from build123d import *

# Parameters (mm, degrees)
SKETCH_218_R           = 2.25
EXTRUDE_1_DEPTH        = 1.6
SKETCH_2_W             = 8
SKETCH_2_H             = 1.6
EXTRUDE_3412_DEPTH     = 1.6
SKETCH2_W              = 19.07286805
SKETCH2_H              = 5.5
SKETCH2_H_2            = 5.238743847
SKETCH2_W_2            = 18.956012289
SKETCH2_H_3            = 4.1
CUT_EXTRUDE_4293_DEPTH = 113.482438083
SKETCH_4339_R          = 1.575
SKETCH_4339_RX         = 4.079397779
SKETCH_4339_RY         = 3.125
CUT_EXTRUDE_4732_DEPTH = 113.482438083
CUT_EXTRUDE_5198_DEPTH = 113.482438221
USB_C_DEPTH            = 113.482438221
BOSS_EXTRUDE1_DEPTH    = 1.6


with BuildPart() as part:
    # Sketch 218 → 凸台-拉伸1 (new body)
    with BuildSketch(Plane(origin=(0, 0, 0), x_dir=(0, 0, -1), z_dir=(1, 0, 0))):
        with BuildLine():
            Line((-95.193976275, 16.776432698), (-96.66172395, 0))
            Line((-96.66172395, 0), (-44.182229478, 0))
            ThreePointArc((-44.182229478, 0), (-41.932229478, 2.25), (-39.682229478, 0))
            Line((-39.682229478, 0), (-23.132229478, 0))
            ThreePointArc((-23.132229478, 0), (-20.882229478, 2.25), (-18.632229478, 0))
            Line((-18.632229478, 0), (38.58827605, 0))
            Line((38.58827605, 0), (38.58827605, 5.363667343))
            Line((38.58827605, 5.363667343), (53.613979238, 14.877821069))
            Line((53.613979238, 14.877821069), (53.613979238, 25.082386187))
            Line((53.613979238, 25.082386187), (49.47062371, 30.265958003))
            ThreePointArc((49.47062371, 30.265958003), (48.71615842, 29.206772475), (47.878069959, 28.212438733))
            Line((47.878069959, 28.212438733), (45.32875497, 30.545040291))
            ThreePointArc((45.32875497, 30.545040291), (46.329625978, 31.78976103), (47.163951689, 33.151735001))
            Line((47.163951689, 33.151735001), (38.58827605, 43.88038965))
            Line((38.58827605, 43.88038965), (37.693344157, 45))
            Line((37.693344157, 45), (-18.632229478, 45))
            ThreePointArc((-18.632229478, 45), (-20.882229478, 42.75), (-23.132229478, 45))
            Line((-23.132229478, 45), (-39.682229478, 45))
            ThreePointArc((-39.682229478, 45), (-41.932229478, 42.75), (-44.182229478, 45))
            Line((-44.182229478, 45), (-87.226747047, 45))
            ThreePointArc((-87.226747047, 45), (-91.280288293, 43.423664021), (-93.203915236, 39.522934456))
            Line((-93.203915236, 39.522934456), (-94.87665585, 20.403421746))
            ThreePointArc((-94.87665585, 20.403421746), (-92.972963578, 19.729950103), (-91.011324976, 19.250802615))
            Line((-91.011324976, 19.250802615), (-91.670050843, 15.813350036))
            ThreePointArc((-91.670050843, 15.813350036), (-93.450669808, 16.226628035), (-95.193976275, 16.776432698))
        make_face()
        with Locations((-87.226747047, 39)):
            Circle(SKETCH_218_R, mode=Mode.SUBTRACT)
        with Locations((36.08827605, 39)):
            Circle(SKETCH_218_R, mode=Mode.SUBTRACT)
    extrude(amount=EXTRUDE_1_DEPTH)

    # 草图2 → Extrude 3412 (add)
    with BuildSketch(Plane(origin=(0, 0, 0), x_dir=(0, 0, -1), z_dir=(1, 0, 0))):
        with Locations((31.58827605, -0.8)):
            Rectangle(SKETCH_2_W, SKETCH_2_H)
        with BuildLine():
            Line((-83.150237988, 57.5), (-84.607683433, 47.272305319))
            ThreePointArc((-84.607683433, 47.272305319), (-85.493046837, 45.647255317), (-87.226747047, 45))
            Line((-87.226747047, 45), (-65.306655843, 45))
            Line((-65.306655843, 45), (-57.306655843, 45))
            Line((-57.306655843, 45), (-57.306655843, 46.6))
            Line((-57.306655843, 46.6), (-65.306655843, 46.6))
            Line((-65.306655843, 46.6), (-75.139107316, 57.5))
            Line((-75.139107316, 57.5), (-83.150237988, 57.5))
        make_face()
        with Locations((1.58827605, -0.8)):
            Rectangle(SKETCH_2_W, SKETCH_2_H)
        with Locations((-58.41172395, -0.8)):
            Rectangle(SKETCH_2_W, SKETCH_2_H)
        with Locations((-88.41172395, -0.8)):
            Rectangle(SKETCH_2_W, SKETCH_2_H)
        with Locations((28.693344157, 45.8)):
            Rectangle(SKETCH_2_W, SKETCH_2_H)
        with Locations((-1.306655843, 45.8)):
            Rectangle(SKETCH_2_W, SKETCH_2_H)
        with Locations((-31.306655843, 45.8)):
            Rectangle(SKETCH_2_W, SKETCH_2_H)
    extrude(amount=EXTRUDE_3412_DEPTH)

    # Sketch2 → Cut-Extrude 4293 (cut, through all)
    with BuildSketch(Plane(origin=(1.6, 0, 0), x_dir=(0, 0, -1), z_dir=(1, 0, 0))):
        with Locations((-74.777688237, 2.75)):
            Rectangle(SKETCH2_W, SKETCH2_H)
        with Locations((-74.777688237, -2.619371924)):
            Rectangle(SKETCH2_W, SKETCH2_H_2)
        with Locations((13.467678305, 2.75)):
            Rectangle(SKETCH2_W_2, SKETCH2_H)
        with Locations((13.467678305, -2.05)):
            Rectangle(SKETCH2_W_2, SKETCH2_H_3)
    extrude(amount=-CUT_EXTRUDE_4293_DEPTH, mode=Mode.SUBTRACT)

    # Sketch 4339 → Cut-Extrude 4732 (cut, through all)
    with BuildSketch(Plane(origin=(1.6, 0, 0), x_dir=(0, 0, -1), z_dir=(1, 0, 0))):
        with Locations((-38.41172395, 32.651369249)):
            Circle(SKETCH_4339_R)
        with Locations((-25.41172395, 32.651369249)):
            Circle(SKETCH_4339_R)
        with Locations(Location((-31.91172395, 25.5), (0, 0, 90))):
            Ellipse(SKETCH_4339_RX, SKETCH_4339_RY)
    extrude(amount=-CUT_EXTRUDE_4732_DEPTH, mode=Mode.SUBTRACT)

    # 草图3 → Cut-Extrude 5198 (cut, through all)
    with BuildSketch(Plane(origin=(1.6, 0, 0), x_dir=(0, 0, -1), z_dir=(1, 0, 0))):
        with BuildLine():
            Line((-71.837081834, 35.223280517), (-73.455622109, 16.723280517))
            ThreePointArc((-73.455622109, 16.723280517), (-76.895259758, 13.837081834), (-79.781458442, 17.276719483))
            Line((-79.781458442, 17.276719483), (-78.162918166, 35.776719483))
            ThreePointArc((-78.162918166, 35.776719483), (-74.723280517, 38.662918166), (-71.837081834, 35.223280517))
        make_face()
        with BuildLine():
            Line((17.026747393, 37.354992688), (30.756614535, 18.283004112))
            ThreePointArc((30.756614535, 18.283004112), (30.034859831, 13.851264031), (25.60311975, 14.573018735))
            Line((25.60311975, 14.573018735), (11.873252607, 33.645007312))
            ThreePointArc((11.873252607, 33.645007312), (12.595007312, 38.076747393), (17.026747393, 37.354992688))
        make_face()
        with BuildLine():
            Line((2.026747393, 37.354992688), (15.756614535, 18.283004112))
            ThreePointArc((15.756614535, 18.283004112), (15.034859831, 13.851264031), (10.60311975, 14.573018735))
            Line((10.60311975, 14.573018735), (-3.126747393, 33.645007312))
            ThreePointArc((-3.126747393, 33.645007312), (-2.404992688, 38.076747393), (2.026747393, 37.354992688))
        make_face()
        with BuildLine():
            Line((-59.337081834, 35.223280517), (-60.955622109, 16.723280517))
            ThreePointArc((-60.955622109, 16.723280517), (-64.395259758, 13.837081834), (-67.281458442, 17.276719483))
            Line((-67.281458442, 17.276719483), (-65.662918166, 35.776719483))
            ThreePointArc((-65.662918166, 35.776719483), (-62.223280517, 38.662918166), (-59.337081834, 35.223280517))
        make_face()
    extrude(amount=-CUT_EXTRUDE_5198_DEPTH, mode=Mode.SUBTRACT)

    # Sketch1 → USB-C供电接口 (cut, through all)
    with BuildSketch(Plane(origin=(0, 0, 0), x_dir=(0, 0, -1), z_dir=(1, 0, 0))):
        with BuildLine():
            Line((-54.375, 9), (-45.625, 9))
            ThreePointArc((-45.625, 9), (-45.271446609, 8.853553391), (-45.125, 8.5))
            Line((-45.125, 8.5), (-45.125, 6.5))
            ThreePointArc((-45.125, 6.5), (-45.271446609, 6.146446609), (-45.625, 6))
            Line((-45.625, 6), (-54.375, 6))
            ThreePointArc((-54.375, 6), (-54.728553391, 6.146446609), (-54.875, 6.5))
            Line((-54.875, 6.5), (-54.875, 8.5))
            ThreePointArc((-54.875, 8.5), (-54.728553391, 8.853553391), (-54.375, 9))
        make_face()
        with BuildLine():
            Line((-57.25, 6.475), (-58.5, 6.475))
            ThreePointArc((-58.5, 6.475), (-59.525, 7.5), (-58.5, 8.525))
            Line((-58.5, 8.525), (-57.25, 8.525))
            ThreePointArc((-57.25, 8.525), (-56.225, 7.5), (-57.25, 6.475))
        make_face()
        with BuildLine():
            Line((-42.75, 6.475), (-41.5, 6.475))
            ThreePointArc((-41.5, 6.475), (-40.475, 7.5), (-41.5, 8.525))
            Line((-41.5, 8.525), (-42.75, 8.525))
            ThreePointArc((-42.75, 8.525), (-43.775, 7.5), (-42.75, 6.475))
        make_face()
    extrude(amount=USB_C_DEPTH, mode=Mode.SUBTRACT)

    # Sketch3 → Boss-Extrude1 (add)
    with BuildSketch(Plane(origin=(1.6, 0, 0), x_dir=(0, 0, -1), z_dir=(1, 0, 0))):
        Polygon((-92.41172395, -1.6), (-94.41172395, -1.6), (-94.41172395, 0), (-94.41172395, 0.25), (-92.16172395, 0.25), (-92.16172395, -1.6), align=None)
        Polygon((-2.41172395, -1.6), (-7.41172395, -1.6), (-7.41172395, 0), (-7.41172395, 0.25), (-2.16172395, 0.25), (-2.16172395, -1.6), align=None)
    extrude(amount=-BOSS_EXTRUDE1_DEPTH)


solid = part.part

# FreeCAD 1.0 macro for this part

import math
import FreeCAD as App
import Part
import Sketcher

V = App.Vector
Q = App.Units.Quantity


def add_polygon(sketch, points):
    """Adds a closed chain of lines whose ends are joined by coincident constraints."""
    first, n = sketch.GeometryCount, len(points)
    for a, b in zip(points, points[1:] + points[:1]):
        sketch.addGeometry(Part.LineSegment(App.Vector(*a, 0), App.Vector(*b, 0)), False)
    for i in range(n):
        sketch.addConstraint(Sketcher.Constraint("Coincident", first + i, 2, first + (i + 1) % n, 1))

doc = App.newDocument("Part")
body = doc.addObject("PartDesign::Body", "Body")

sketch1 = body.newObject("Sketcher::SketchObject", "Sketch")
sketch1.AttachmentSupport = (doc.getObject("YZ_Plane"), [""])
sketch1.MapMode = "FlatFace"
sketch1.addGeometry([
    Part.LineSegment(V(16.8, 95.2, 0), V(0, 96.7, 0)),
    Part.LineSegment(V(0, 96.7, 0), V(0, 44.2, 0)),
    Part.ArcOfCircle(Part.Circle(V(0, 41.9, 0), V(0, 0, 1), 2.2), math.radians(-90), math.radians(90)),
    Part.LineSegment(V(0, 39.7, 0), V(0, 23.1, 0)),
    Part.ArcOfCircle(Part.Circle(V(0, 20.9, 0), V(0, 0, 1), 2.2), math.radians(-90), math.radians(90)),
    Part.LineSegment(V(0, 18.6, 0), V(0, -38.6, 0)),
    Part.LineSegment(V(0, -38.6, 0), V(5.4, -38.6, 0)),
    Part.LineSegment(V(5.4, -38.6, 0), V(14.9, -53.6, 0)),
    Part.LineSegment(V(14.9, -53.6, 0), V(25.1, -53.6, 0)),
    Part.LineSegment(V(25.1, -53.6, 0), V(30.3, -49.5, 0)),
    Part.ArcOfCircle(Part.Circle(V(39, -36.1, 0), V(0, 0, 1), 16), math.radians(-132.46), math.radians(-123.13)),
    Part.LineSegment(V(28.2, -47.9, 0), V(30.5, -45.3, 0)),
    Part.ArcOfCircle(Part.Circle(V(39, -36.1, 0), V(0, 0, 1), 12.5), math.radians(-132.46), math.radians(-117.84)),
    Part.LineSegment(V(33.2, -47.2, 0), V(43.9, -38.6, 0)),
    Part.LineSegment(V(43.9, -38.6, 0), V(45, -37.7, 0)),
    Part.LineSegment(V(45, -37.7, 0), V(45, 18.6, 0)),
    Part.ArcOfCircle(Part.Circle(V(45, 20.9, 0), V(0, 0, 1), 2.2), math.radians(90), math.radians(270)),
    Part.LineSegment(V(45, 23.1, 0), V(45, 39.7, 0)),
    Part.ArcOfCircle(Part.Circle(V(45, 41.9, 0), V(0, 0, 1), 2.2), math.radians(90), math.radians(270)),
    Part.LineSegment(V(45, 44.2, 0), V(45, 87.2, 0)),
    Part.ArcOfCircle(Part.Circle(V(39, 87.2, 0), V(0, 0, 1), 6), math.radians(0), math.radians(85)),
    Part.LineSegment(V(39.5, 93.2, 0), V(20.4, 94.9, 0)),
    Part.ArcOfCircle(Part.Circle(V(39, 87.2, 0), V(0, 0, 1), 20.1), math.radians(157.64), math.radians(169.15)),
    Part.LineSegment(V(19.3, 91, 0), V(15.8, 91.7, 0)),
    Part.ArcOfCircle(Part.Circle(V(39, 87.2, 0), V(0, 0, 1), 23.6), math.radians(160.28), math.radians(169.15)),
    Part.Circle(V(39, 87.2, 0), V(0, 0, 1), 2.2),
    Part.Circle(V(39, -36.1, 0), V(0, 0, 1), 2.2),
], False)
sketch1.addConstraint([
    Sketcher.Constraint("Coincident", 0, 2, 1, 1),
    Sketcher.Constraint("Coincident", 1, 2, 2, 2),
    Sketcher.Constraint("Coincident", 2, 1, 3, 1),
    Sketcher.Constraint("Coincident", 3, 2, 4, 2),
    Sketcher.Constraint("Coincident", 4, 1, 5, 1),
    Sketcher.Constraint("Coincident", 5, 2, 6, 1),
    Sketcher.Constraint("Coincident", 6, 2, 7, 1),
    Sketcher.Constraint("Coincident", 7, 2, 8, 1),
    Sketcher.Constraint("Coincident", 8, 2, 9, 1),
    Sketcher.Constraint("Coincident", 9, 2, 10, 2),
    Sketcher.Constraint("Coincident", 10, 1, 11, 1),
    Sketcher.Constraint("Coincident", 11, 2, 12, 1),
    Sketcher.Constraint("Coincident", 12, 2, 13, 1),
    Sketcher.Constraint("Coincident", 13, 2, 14, 1),
    Sketcher.Constraint("Coincident", 14, 2, 15, 1),
    Sketcher.Constraint("Coincident", 15, 2, 16, 2),
    Sketcher.Constraint("Coincident", 16, 1, 17, 1),
    Sketcher.Constraint("Coincident", 17, 2, 18, 2),
    Sketcher.Constraint("Coincident", 18, 1, 19, 1),
    Sketcher.Constraint("Tangent", 19, 2, 20, 1),
    Sketcher.Constraint("Tangent", 20, 2, 21, 1),
    Sketcher.Constraint("Coincident", 21, 2, 22, 1),
    Sketcher.Constraint("Coincident", 22, 2, 23, 1),
    Sketcher.Constraint("Coincident", 23, 2, 24, 2),
    Sketcher.Constraint("Coincident", 24, 1, 0, 1),
    Sketcher.Constraint("Vertical", 1),
    Sketcher.Constraint("Vertical", 3),
    Sketcher.Constraint("Vertical", 5),
    Sketcher.Constraint("Horizontal", 6),
    Sketcher.Constraint("Horizontal", 8),
    Sketcher.Constraint("Vertical", 15),
    Sketcher.Constraint("Vertical", 17),
    Sketcher.Constraint("Vertical", 19),
    Sketcher.Constraint("Coincident", 12, 3, 10, 3),
    Sketcher.Constraint("Coincident", 22, 3, 20, 3),
    Sketcher.Constraint("Coincident", 24, 3, 20, 3),
    Sketcher.Constraint("Coincident", 25, 3, 20, 3),
    Sketcher.Constraint("Coincident", 26, 3, 10, 3),
    Sketcher.Constraint("Equal", 2, 4),
    Sketcher.Constraint("Equal", 4, 16),
    Sketcher.Constraint("Equal", 16, 18),
    Sketcher.Constraint("Equal", 18, 25),
    Sketcher.Constraint("Equal", 25, 26),
    Sketcher.Constraint("PointOnObject", 2, 3, -2),
    Sketcher.Constraint("PointOnObject", 4, 3, -2),
    Sketcher.Constraint("PointOnObject", 0, 2, -2),
    Sketcher.Constraint("PointOnObject", 2, 1, -2),
    Sketcher.Constraint("PointOnObject", 4, 1, -2),
    Sketcher.Constraint("Parallel", 9, 13),
    Sketcher.Constraint("Parallel", 13, 14),
    Sketcher.Constraint("Parallel", 0, 21),
    Sketcher.Constraint("Horizontal", 4, 3, 16, 3),
    Sketcher.Constraint("Horizontal", 2, 3, 18, 3),
    Sketcher.Constraint("Horizontal", 6, 2, 13, 2),
    Sketcher.Constraint("Vertical", 16, 3, 18, 3),
    Sketcher.Constraint("Vertical", 12, 3, 20, 3),
    Sketcher.Constraint("Vertical", 18, 3, 14, 2),
    Sketcher.Constraint("Vertical", 15, 2, 16, 1),
    Sketcher.Constraint("Vertical", 17, 2, 18, 1),
    Sketcher.Constraint("Radius", 20, 6.0),
    Sketcher.Constraint("Diameter", 25, 4.5),
    Sketcher.Constraint("Angle", 0, Q("175 deg")),
    Sketcher.Constraint("DistanceX", -1, 1, 10, 3, 39.0),
    Sketcher.Constraint("Distance", 23, 3.5),
    Sketcher.Constraint("DistanceY", 3, 2, 3, 1, 16.55),
    Sketcher.Constraint("DistanceY", 5, 2, 10, 3, 2.5),
    Sketcher.Constraint("Radius", 22, 20.108551),
    Sketcher.Constraint("Radius", 10, 15.980323),
    Sketcher.Constraint("Radius", 12, 12.524887),
    Sketcher.Constraint("DistanceX", 10, 1, 11, 2, 2.332602),
    Sketcher.Constraint("DistanceY", 22, 2, 0, 2, 5.650399),
    Sketcher.Constraint("DistanceX", 24, 1, 20, 2, 22.746502),
    Sketcher.Constraint("Distance", 7, 17.784569),
    Sketcher.Constraint("Distance", 14, 1.433328),
    Sketcher.Constraint("DistanceX", 6, 1, 6, 2, 5.363667),
    Sketcher.Constraint("DistanceX", 8, 1, 8, 2, 10.204565),
    Sketcher.Constraint("DistanceY", 1, 2, 1, 1, 52.479494),
    Sketcher.Constraint("DistanceY", 5, 2, 5, 1, 57.220506),
    Sketcher.Constraint("DistanceY", 15, 1, 15, 2, 56.325574),
    Sketcher.Constraint("DistanceY", -1, 1, 2, 3, 41.932229),
    Sketcher.Constraint("DistanceX", -1, 1, 7, 2, 14.877821),
    Sketcher.Constraint("DistanceX", -1, 1, 10, 1, 28.212439),
    Sketcher.Constraint("DistanceX", -1, 1, 23, 2, 15.81335),
])
pad1 = body.newObject("PartDesign::Pad", "Pad")
pad1.Profile = sketch1
pad1.Length = 1.6

sketch2 = body.newObject("Sketcher::SketchObject", "Sketch001")
sketch2.AttachmentSupport = (doc.getObject("YZ_Plane"), [""])
sketch2.MapMode = "FlatFace"
add_polygon(sketch2, [(0, -27.6), (-1.6, -27.6), (-1.6, -35.6), (0, -35.6)])
sketch2.addGeometry(Part.LineSegment(V(57.5, 83.2, 0), V(47.3, 84.6, 0)), False)
sketch2.addGeometry(Part.ArcOfCircle(Part.Circle(V(47.6, 87.2, 0), V(0, 0, 1), 2.6), math.radians(180), math.radians(262)), False)
sketch2.addGeometry(Part.LineSegment(V(45, 87.2, 0), V(45, 57.3, 0)), False)
sketch2.addGeometry(Part.LineSegment(V(45, 57.3, 0), V(46.6, 57.3, 0)), False)
sketch2.addGeometry(Part.LineSegment(V(46.6, 57.3, 0), V(46.6, 65.3, 0)), False)
sketch2.addGeometry(Part.LineSegment(V(46.6, 65.3, 0), V(57.5, 75.1, 0)), False)
sketch2.addGeometry(Part.LineSegment(V(57.5, 75.1, 0), V(57.5, 83.2, 0)), False)
add_polygon(sketch2, [(0, 2.4), (-1.6, 2.4), (-1.6, -5.6), (0, -5.6)])
add_polygon(sketch2, [(0, 62.4), (-1.6, 62.4), (-1.6, 54.4), (0, 54.4)])
add_polygon(sketch2, [(0, 92.4), (-1.6, 92.4), (-1.6, 84.4), (0, 84.4)])
add_polygon(sketch2, [(46.6, -24.7), (45, -24.7), (45, -32.7), (46.6, -32.7)])
add_polygon(sketch2, [(46.6, 5.3), (45, 5.3), (45, -2.7), (46.6, -2.7)])
add_polygon(sketch2, [(46.6, 35.3), (45, 35.3), (45, 27.3), (46.6, 27.3)])
sketch2.addConstraint([
    Sketcher.Constraint("Tangent", 4, 2, 5, 2),
    Sketcher.Constraint("Tangent", 5, 1, 6, 1),
    Sketcher.Constraint("Coincident", 6, 2, 7, 1),
    Sketcher.Constraint("Coincident", 7, 2, 8, 1),
    Sketcher.Constraint("Coincident", 8, 2, 9, 1),
    Sketcher.Constraint("Coincident", 9, 2, 10, 1),
    Sketcher.Constraint("Coincident", 10, 2, 4, 1),
    Sketcher.Constraint("Horizontal", 0),
    Sketcher.Constraint("Vertical", 1),
    Sketcher.Constraint("Horizontal", 2),
    Sketcher.Constraint("Vertical", 3),
    Sketcher.Constraint("Vertical", 6),
    Sketcher.Constraint("Horizontal", 7),
    Sketcher.Constraint("Vertical", 8),
    Sketcher.Constraint("Vertical", 10),
    Sketcher.Constraint("Horizontal", 11),
    Sketcher.Constraint("Vertical", 12),
    Sketcher.Constraint("Horizontal", 13),
    Sketcher.Constraint("Vertical", 14),
    Sketcher.Constraint("Horizontal", 15),
    Sketcher.Constraint("Vertical", 16),
    Sketcher.Constraint("Horizontal", 17),
    Sketcher.Constraint("Vertical", 18),
    Sketcher.Constraint("Horizontal", 19),
    Sketcher.Constraint("Vertical", 20),
    Sketcher.Constraint("Horizontal", 21),
    Sketcher.Constraint("Vertical", 22),
    Sketcher.Constraint("Horizontal", 23),
    Sketcher.Constraint("Vertical", 24),
    Sketcher.Constraint("Horizontal", 25),
    Sketcher.Constraint("Vertical", 26),
    Sketcher.Constraint("Horizontal", 27),
    Sketcher.Constraint("Vertical", 28),
    Sketcher.Constraint("Horizontal", 29),
    Sketcher.Constraint("Vertical", 30),
    Sketcher.Constraint("Horizontal", 31),
    Sketcher.Constraint("Vertical", 32),
    Sketcher.Constraint("Horizontal", 33),
    Sketcher.Constraint("Vertical", 34),
    Sketcher.Constraint("PointOnObject", 2, 2, -2),
    Sketcher.Constraint("PointOnObject", 13, 2, -2),
    Sketcher.Constraint("PointOnObject", 17, 2, -2),
    Sketcher.Constraint("PointOnObject", 21, 2, -2),
    Sketcher.Constraint("Vertical", 1, 2, 11, 2),
    Sketcher.Constraint("Vertical", 12, 2, 15, 2),
    Sketcher.Constraint("Vertical", 16, 2, 19, 2),
    Sketcher.Constraint("Vertical", 6, 2, 23, 2),
    Sketcher.Constraint("Vertical", 8, 2, 25, 2),
    Sketcher.Constraint("Vertical", 24, 2, 27, 2),
    Sketcher.Constraint("Vertical", 26, 2, 29, 2),
    Sketcher.Constraint("Vertical", 28, 2, 31, 2),
    Sketcher.Constraint("Vertical", 30, 2, 33, 2),
    Sketcher.Constraint("Equal", 2, 7),
    Sketcher.Constraint("Equal", 3, 8),
    Sketcher.Constraint("Equal", 8, 12),
    Sketcher.Constraint("Equal", 14, 16),
    Sketcher.Constraint("Equal", 18, 20),
    Sketcher.Constraint("Equal", 22, 24),
    Sketcher.Constraint("Equal", 26, 28),
    Sketcher.Constraint("Equal", 30, 32),
    Sketcher.Constraint("DistanceY", 1, 2, 1, 1, 8.0),
    Sketcher.Constraint("DistanceX", 0, 2, 0, 1, 1.6),
    Sketcher.Constraint("DistanceX", -1, 1, 5, 1, 45.0),
    Sketcher.Constraint("DistanceY", 0, 2, 11, 2, 30.0),
    Sketcher.Constraint("DistanceY", 11, 2, 16, 2, 52.0),
    Sketcher.Constraint("DistanceY", 15, 2, 19, 2, 30.0),
    Sketcher.Constraint("DistanceY", 23, 2, 27, 2, 30.0),
    Sketcher.Constraint("DistanceY", 31, 2, 6, 2, 22.0),
    Sketcher.Constraint("DistanceY", 27, 2, 31, 2, 30.0),
    Sketcher.Constraint("DistanceX", -1, 1, 9, 2, 57.5),
    Sketcher.Constraint("Radius", 5, 2.645522),
    Sketcher.Constraint("DistanceY", 6, 2, 6, 1, 29.920091),
    Sketcher.Constraint("DistanceY", 10, 1, 10, 2, 8.011131),
    Sketcher.Constraint("Distance", 9, 14.679479),
    Sketcher.Constraint("DistanceY", 3, 2, 4, 2, 112.195959),
    Sketcher.Constraint("DistanceY", -1, 1, 5, 3, 87.226747),
])
pad2 = body.newObject("PartDesign::Pad", "Pad001")
pad2.Profile = sketch2
pad2.Length = 1.6

sketch3 = body.newObject("Sketcher::SketchObject", "Sketch002")
sketch3.AttachmentSupport = (doc.getObject("YZ_Plane"), [""])
sketch3.MapMode = "FlatFace"
sketch3.AttachmentOffset = App.Placement(V(0, 0, 1.6), App.Rotation())
add_polygon(sketch3, [(6, 84), (-5, 84), (-5, 65), (6, 65)])
add_polygon(sketch3, [(6, -4), (-4, -4), (-4, -23), (6, -23)])
sketch3.addConstraint([
    Sketcher.Constraint("Horizontal", 0),
    Sketcher.Constraint("Vertical", 1),
    Sketcher.Constraint("Horizontal", 2),
    Sketcher.Constraint("Vertical", 3),
    Sketcher.Constraint("Horizontal", 4),
    Sketcher.Constraint("Vertical", 5),
    Sketcher.Constraint("Horizontal", 6),
    Sketcher.Constraint("Vertical", 7),
    Sketcher.Constraint("Vertical", 3, 2, 6, 2),
    Sketcher.Constraint("DistanceX", 4, 2, 4, 1, 9.6),
    Sketcher.Constraint("DistanceX", -1, 1, 2, 2, 5.5),
    Sketcher.Constraint("DistanceY", 1, 2, 1, 1, 19.072868),
    Sketcher.Constraint("DistanceX", 0, 2, 0, 1, 10.738744),
    Sketcher.Constraint("DistanceY", 5, 2, 5, 1, 18.956012),
    Sketcher.Constraint("DistanceY", 5, 2, 1, 2, 88.186939),
    Sketcher.Constraint("DistanceY", -1, 1, 0, 2, 84.314122),
])
pocket1 = body.newObject("PartDesign::Pocket", "Pocket")
pocket1.Profile = sketch3
pocket1.Type = "ThroughAll"

sketch4 = body.newObject("Sketcher::SketchObject", "Sketch003")
sketch4.AttachmentSupport = (doc.getObject("YZ_Plane"), [""])
sketch4.MapMode = "FlatFace"
sketch4.AttachmentOffset = App.Placement(V(0, 0, 1.6), App.Rotation())
sketch4.addGeometry([
    Part.Circle(V(32.651369, 38.411724, 0), V(0, 0, 1), 1.575),
    Part.Circle(V(32.651369, 25.411724, 0), V(0, 0, 1), 1.575),
    Part.Ellipse(V(29.579398, 31.911724, 0), V(25.5, 35.036724, 0), V(25.5, 31.911724, 0)),
], False)
sketch4.addConstraint([
    Sketcher.Constraint("Block", 2),
    Sketcher.Constraint("Equal", 0, 1),
    Sketcher.Constraint("Vertical", 0, 3, 1, 3),
    Sketcher.Constraint("Diameter", 0, 3.15),
    Sketcher.Constraint("DistanceY", 1, 3, 0, 3, 13.0),
    Sketcher.Constraint("DistanceX", -1, 1, 0, 3, 32.651369),
    Sketcher.Constraint("DistanceY", -1, 1, 0, 3, 38.411724),
])
pocket2 = body.newObject("PartDesign::Pocket", "Pocket001")
pocket2.Profile = sketch4
pocket2.Type = "ThroughAll"

sketch5 = body.newObject("Sketcher::SketchObject", "Sketch004")
sketch5.AttachmentSupport = (doc.getObject("YZ_Plane"), [""])
sketch5.MapMode = "FlatFace"
sketch5.AttachmentOffset = App.Placement(V(0, 0, 1.6), App.Rotation())
sketch5.addGeometry([
    Part.LineSegment(V(16.7, 73.5, 0), V(35.2, 71.8, 0)),
    Part.ArcOfCircle(Part.Circle(V(35.5, 75, 0), V(0, 0, 1), 3.2), math.radians(-95), math.radians(85)),
    Part.LineSegment(V(35.8, 78.2, 0), V(17.3, 79.8, 0)),
    Part.ArcOfCircle(Part.Circle(V(17, 76.6, 0), V(0, 0, 1), 3.2), math.radians(85), math.radians(265)),
    Part.LineSegment(V(18.3, -30.8, 0), V(37.4, -17, 0)),
    Part.ArcOfCircle(Part.Circle(V(35.5, -14.4, 0), V(0, 0, 1), 3.2), math.radians(-54), math.radians(126)),
    Part.LineSegment(V(33.6, -11.9, 0), V(14.6, -25.6, 0)),
    Part.ArcOfCircle(Part.Circle(V(16.4, -28.2, 0), V(0, 0, 1), 3.2), math.radians(126), math.radians(306)),
    Part.LineSegment(V(18.3, -15.8, 0), V(37.4, -2, 0)),
    Part.ArcOfCircle(Part.Circle(V(35.5, 0.6, 0), V(0, 0, 1), 3.2), math.radians(-54), math.radians(126)),
    Part.LineSegment(V(33.6, 3.1, 0), V(14.6, -10.6, 0)),
    Part.ArcOfCircle(Part.Circle(V(16.4, -13.2, 0), V(0, 0, 1), 3.2), math.radians(126), math.radians(306)),
    Part.LineSegment(V(16.7, 61, 0), V(35.2, 59.3, 0)),
    Part.ArcOfCircle(Part.Circle(V(35.5, 62.5, 0), V(0, 0, 1), 3.2), math.radians(-95), math.radians(85)),
    Part.LineSegment(V(35.8, 65.7, 0), V(17.3, 67.3, 0)),
    Part.ArcOfCircle(Part.Circle(V(17, 64.1, 0), V(0, 0, 1), 3.2), math.radians(85), math.radians(265)),
], False)
sketch5.addConstraint([
    Sketcher.Constraint("Tangent", 0, 2, 1, 1),
    Sketcher.Constraint("Tangent", 1, 2, 2, 1),
    Sketcher.Constraint("Tangent", 2, 2, 3, 1),
    Sketcher.Constraint("Tangent", 3, 2, 0, 1),
    Sketcher.Constraint("Tangent", 4, 2, 5, 1),
    Sketcher.Constraint("Tangent", 5, 2, 6, 1),
    Sketcher.Constraint("Tangent", 6, 2, 7, 1),
    Sketcher.Constraint("Tangent", 7, 2, 4, 1),
    Sketcher.Constraint("Tangent", 8, 2, 9, 1),
    Sketcher.Constraint("Tangent", 9, 2, 10, 1),
    Sketcher.Constraint("Tangent", 10, 2, 11, 1),
    Sketcher.Constraint("Tangent", 11, 2, 8, 1),
    Sketcher.Constraint("Tangent", 12, 2, 13, 1),
    Sketcher.Constraint("Tangent", 13, 2, 14, 1),
    Sketcher.Constraint("Tangent", 14, 2, 15, 1),
    Sketcher.Constraint("Tangent", 15, 2, 12, 1),
    Sketcher.Constraint("Equal", 1, 3),
    Sketcher.Constraint("Equal", 3, 5),
    Sketcher.Constraint("Equal", 5, 7),
    Sketcher.Constraint("Equal", 7, 9),
    Sketcher.Constraint("Equal", 9, 11),
    Sketcher.Constraint("Equal", 11, 13),
    Sketcher.Constraint("Equal", 13, 15),
    Sketcher.Constraint("Parallel", 6, 8),
    Sketcher.Constraint("Parallel", 2, 12),
    Sketcher.Constraint("Vertical", 1, 3, 5, 3),
    Sketcher.Constraint("Vertical", 5, 3, 9, 3),
    Sketcher.Constraint("Vertical", 7, 3, 11, 3),
    Sketcher.Constraint("Vertical", 9, 3, 13, 3),
    Sketcher.Constraint("Vertical", 3, 3, 15, 3),
    Sketcher.Constraint("Angle", 0, Q("-5 deg")),
    Sketcher.Constraint("DistanceY", -1, 1, 1, 3, 75.0),
    Sketcher.Constraint("DistanceX", -1, 1, 3, 3, 17.0),
    Sketcher.Constraint("Radius", 1, 3.175),
    Sketcher.Constraint("DistanceY", 5, 3, 9, 3, 15.0),
    Sketcher.Constraint("Distance", 4, 23.5),
    Sketcher.Constraint("DistanceX", -1, 1, 1, 3, 35.5),
    Sketcher.Constraint("DistanceY", -1, 1, 13, 3, 62.5),
    Sketcher.Constraint("Angle", 4, Q("35.75 deg")),
    Sketcher.Constraint("DistanceY", 5, 3, -1, 1, 14.45),
])
pocket3 = body.newObject("PartDesign::Pocket", "Pocket002")
pocket3.Profile = sketch5
pocket3.Type = "ThroughAll"

sketch6 = body.newObject("Sketcher::SketchObject", "Sketch005")
sketch6.AttachmentSupport = (doc.getObject("YZ_Plane"), [""])
sketch6.MapMode = "FlatFace"
sketch6.addGeometry([
    Part.LineSegment(V(9, 45.62, 0), V(9, 54.38, 0)),
    Part.ArcOfCircle(Part.Circle(V(8.5, 54.38, 0), V(0, 0, 1), 0.5), math.radians(0), math.radians(90)),
    Part.LineSegment(V(8.5, 54.88, 0), V(6.5, 54.88, 0)),
    Part.ArcOfCircle(Part.Circle(V(6.5, 54.38, 0), V(0, 0, 1), 0.5), math.radians(90), math.radians(180)),
    Part.LineSegment(V(6, 54.38, 0), V(6, 45.62, 0)),
    Part.ArcOfCircle(Part.Circle(V(6.5, 45.62, 0), V(0, 0, 1), 0.5), math.radians(180), math.radians(270)),
    Part.LineSegment(V(6.5, 45.12, 0), V(8.5, 45.12, 0)),
    Part.ArcOfCircle(Part.Circle(V(8.5, 45.62, 0), V(0, 0, 1), 0.5), math.radians(-90), math.radians(0)),
    Part.LineSegment(V(6.47, 58.5, 0), V(6.47, 57.25, 0)),
    Part.ArcOfCircle(Part.Circle(V(7.5, 57.25, 0), V(0, 0, 1), 1.02), math.radians(180), math.radians(360)),
    Part.LineSegment(V(8.53, 57.25, 0), V(8.53, 58.5, 0)),
    Part.ArcOfCircle(Part.Circle(V(7.5, 58.5, 0), V(0, 0, 1), 1.02), math.radians(0), math.radians(180)),
    Part.LineSegment(V(6.47, 42.75, 0), V(6.47, 41.5, 0)),
    Part.ArcOfCircle(Part.Circle(V(7.5, 41.5, 0), V(0, 0, 1), 1.02), math.radians(180), math.radians(360)),
    Part.LineSegment(V(8.53, 41.5, 0), V(8.53, 42.75, 0)),
    Part.ArcOfCircle(Part.Circle(V(7.5, 42.75, 0), V(0, 0, 1), 1.02), math.radians(0), math.radians(180)),
], False)
sketch6.addConstraint([
    Sketcher.Constraint("Tangent", 0, 2, 1, 1),
    Sketcher.Constraint("Tangent", 1, 2, 2, 1),
    Sketcher.Constraint("Tangent", 2, 2, 3, 1),
    Sketcher.Constraint("Tangent", 3, 2, 4, 1),
    Sketcher.Constraint("Tangent", 4, 2, 5, 1),
    Sketcher.Constraint("Tangent", 5, 2, 6, 1),
    Sketcher.Constraint("Tangent", 6, 2, 7, 1),
    Sketcher.Constraint("Tangent", 7, 2, 0, 1),
    Sketcher.Constraint("Tangent", 8, 2, 9, 1),
    Sketcher.Constraint("Tangent", 9, 2, 10, 1),
    Sketcher.Constraint("Tangent", 10, 2, 11, 1),
    Sketcher.Constraint("Tangent", 11, 2, 8, 1),
    Sketcher.Constraint("Tangent", 12, 2, 13, 1),
    Sketcher.Constraint("Tangent", 13, 2, 14, 1),
    Sketcher.Constraint("Tangent", 14, 2, 15, 1),
    Sketcher.Constraint("Tangent", 15, 2, 12, 1),
    Sketcher.Constraint("Vertical", 0),
    Sketcher.Constraint("Horizontal", 2),
    Sketcher.Constraint("Vertical", 4),
    Sketcher.Constraint("Horizontal", 6),
    Sketcher.Constraint("Vertical", 8),
    Sketcher.Constraint("Vertical", 10),
    Sketcher.Constraint("Vertical", 12),
    Sketcher.Constraint("Vertical", 14),
    Sketcher.Constraint("Equal", 1, 3),
    Sketcher.Constraint("Equal", 3, 5),
    Sketcher.Constraint("Equal", 5, 7),
    Sketcher.Constraint("Equal", 11, 13),
    Sketcher.Constraint("Vertical", 11, 3, 13, 3),
    Sketcher.Constraint("Equal", 10, 12),
    Sketcher.Constraint("Radius", 1, 0.5),
    Sketcher.Constraint("DistanceX", 2, 2, 2, 1, 2.0),
    Sketcher.Constraint("DistanceX", -1, 1, 0, 2, 9.0),
    Sketcher.Constraint("Radius", 9, 1.025),
    Sketcher.Constraint("DistanceX", 9, 3, 1, 3, 1.0),
    Sketcher.Constraint("DistanceY", 0, 1, 0, 2, 8.75),
    Sketcher.Constraint("DistanceY", 8, 2, 8, 1, 1.25),
    Sketcher.Constraint("DistanceY", -1, 1, 11, 3, 58.5),
    Sketcher.Constraint("DistanceY", -1, 1, 13, 3, 41.5),
    Sketcher.Constraint("DistanceY", -1, 1, 1, 3, 54.375),
])
pocket4 = body.newObject("PartDesign::Pocket", "Pocket003")
pocket4.Profile = sketch6
pocket4.Type = "ThroughAll"
pocket4.Reversed = True

sketch7 = body.newObject("Sketcher::SketchObject", "Sketch006")
sketch7.AttachmentSupport = (doc.getObject("YZ_Plane"), [""])
sketch7.MapMode = "FlatFace"
sketch7.AttachmentOffset = App.Placement(V(0, 0, 1.6), App.Rotation())
add_polygon(sketch7, [(-1.6, 94.4), (-1.6, 92.2), (0.2, 92.2), (0.2, 94.4)])
add_polygon(sketch7, [(-1.6, 7.4), (-1.6, 2.2), (0.2, 2.2), (0.2, 7.4)])
sketch7.addConstraint([
    Sketcher.Constraint("Vertical", 0),
    Sketcher.Constraint("Horizontal", 1),
    Sketcher.Constraint("Vertical", 2),
    Sketcher.Constraint("Horizontal", 3),
    Sketcher.Constraint("Vertical", 4),
    Sketcher.Constraint("Horizontal", 5),
    Sketcher.Constraint("Vertical", 6),
    Sketcher.Constraint("Horizontal", 7),
    Sketcher.Constraint("Vertical", 3, 2, 4, 2),
    Sketcher.Constraint("Vertical", 2, 2, 5, 2),
    Sketcher.Constraint("DistanceY", 4, 2, 0, 2, 90.0),
    Sketcher.Constraint("DistanceY", 6, 2, 2, 2, 87.0),
    Sketcher.Constraint("DistanceX", 1, 1, 1, 2, 1.85),
    Sketcher.Constraint("DistanceY", 0, 2, 0, 1, 2.25),
    Sketcher.Constraint("DistanceX", 0, 2, -1, 1, 1.6),
    Sketcher.Constraint("DistanceY", -1, 1, 0, 2, 92.161724),
])
pad3 = body.newObject("PartDesign::Pad", "Pad002")
pad3.Profile = sketch7
pad3.Length = 1.6
pad3.Reversed = True

doc.recompute()
